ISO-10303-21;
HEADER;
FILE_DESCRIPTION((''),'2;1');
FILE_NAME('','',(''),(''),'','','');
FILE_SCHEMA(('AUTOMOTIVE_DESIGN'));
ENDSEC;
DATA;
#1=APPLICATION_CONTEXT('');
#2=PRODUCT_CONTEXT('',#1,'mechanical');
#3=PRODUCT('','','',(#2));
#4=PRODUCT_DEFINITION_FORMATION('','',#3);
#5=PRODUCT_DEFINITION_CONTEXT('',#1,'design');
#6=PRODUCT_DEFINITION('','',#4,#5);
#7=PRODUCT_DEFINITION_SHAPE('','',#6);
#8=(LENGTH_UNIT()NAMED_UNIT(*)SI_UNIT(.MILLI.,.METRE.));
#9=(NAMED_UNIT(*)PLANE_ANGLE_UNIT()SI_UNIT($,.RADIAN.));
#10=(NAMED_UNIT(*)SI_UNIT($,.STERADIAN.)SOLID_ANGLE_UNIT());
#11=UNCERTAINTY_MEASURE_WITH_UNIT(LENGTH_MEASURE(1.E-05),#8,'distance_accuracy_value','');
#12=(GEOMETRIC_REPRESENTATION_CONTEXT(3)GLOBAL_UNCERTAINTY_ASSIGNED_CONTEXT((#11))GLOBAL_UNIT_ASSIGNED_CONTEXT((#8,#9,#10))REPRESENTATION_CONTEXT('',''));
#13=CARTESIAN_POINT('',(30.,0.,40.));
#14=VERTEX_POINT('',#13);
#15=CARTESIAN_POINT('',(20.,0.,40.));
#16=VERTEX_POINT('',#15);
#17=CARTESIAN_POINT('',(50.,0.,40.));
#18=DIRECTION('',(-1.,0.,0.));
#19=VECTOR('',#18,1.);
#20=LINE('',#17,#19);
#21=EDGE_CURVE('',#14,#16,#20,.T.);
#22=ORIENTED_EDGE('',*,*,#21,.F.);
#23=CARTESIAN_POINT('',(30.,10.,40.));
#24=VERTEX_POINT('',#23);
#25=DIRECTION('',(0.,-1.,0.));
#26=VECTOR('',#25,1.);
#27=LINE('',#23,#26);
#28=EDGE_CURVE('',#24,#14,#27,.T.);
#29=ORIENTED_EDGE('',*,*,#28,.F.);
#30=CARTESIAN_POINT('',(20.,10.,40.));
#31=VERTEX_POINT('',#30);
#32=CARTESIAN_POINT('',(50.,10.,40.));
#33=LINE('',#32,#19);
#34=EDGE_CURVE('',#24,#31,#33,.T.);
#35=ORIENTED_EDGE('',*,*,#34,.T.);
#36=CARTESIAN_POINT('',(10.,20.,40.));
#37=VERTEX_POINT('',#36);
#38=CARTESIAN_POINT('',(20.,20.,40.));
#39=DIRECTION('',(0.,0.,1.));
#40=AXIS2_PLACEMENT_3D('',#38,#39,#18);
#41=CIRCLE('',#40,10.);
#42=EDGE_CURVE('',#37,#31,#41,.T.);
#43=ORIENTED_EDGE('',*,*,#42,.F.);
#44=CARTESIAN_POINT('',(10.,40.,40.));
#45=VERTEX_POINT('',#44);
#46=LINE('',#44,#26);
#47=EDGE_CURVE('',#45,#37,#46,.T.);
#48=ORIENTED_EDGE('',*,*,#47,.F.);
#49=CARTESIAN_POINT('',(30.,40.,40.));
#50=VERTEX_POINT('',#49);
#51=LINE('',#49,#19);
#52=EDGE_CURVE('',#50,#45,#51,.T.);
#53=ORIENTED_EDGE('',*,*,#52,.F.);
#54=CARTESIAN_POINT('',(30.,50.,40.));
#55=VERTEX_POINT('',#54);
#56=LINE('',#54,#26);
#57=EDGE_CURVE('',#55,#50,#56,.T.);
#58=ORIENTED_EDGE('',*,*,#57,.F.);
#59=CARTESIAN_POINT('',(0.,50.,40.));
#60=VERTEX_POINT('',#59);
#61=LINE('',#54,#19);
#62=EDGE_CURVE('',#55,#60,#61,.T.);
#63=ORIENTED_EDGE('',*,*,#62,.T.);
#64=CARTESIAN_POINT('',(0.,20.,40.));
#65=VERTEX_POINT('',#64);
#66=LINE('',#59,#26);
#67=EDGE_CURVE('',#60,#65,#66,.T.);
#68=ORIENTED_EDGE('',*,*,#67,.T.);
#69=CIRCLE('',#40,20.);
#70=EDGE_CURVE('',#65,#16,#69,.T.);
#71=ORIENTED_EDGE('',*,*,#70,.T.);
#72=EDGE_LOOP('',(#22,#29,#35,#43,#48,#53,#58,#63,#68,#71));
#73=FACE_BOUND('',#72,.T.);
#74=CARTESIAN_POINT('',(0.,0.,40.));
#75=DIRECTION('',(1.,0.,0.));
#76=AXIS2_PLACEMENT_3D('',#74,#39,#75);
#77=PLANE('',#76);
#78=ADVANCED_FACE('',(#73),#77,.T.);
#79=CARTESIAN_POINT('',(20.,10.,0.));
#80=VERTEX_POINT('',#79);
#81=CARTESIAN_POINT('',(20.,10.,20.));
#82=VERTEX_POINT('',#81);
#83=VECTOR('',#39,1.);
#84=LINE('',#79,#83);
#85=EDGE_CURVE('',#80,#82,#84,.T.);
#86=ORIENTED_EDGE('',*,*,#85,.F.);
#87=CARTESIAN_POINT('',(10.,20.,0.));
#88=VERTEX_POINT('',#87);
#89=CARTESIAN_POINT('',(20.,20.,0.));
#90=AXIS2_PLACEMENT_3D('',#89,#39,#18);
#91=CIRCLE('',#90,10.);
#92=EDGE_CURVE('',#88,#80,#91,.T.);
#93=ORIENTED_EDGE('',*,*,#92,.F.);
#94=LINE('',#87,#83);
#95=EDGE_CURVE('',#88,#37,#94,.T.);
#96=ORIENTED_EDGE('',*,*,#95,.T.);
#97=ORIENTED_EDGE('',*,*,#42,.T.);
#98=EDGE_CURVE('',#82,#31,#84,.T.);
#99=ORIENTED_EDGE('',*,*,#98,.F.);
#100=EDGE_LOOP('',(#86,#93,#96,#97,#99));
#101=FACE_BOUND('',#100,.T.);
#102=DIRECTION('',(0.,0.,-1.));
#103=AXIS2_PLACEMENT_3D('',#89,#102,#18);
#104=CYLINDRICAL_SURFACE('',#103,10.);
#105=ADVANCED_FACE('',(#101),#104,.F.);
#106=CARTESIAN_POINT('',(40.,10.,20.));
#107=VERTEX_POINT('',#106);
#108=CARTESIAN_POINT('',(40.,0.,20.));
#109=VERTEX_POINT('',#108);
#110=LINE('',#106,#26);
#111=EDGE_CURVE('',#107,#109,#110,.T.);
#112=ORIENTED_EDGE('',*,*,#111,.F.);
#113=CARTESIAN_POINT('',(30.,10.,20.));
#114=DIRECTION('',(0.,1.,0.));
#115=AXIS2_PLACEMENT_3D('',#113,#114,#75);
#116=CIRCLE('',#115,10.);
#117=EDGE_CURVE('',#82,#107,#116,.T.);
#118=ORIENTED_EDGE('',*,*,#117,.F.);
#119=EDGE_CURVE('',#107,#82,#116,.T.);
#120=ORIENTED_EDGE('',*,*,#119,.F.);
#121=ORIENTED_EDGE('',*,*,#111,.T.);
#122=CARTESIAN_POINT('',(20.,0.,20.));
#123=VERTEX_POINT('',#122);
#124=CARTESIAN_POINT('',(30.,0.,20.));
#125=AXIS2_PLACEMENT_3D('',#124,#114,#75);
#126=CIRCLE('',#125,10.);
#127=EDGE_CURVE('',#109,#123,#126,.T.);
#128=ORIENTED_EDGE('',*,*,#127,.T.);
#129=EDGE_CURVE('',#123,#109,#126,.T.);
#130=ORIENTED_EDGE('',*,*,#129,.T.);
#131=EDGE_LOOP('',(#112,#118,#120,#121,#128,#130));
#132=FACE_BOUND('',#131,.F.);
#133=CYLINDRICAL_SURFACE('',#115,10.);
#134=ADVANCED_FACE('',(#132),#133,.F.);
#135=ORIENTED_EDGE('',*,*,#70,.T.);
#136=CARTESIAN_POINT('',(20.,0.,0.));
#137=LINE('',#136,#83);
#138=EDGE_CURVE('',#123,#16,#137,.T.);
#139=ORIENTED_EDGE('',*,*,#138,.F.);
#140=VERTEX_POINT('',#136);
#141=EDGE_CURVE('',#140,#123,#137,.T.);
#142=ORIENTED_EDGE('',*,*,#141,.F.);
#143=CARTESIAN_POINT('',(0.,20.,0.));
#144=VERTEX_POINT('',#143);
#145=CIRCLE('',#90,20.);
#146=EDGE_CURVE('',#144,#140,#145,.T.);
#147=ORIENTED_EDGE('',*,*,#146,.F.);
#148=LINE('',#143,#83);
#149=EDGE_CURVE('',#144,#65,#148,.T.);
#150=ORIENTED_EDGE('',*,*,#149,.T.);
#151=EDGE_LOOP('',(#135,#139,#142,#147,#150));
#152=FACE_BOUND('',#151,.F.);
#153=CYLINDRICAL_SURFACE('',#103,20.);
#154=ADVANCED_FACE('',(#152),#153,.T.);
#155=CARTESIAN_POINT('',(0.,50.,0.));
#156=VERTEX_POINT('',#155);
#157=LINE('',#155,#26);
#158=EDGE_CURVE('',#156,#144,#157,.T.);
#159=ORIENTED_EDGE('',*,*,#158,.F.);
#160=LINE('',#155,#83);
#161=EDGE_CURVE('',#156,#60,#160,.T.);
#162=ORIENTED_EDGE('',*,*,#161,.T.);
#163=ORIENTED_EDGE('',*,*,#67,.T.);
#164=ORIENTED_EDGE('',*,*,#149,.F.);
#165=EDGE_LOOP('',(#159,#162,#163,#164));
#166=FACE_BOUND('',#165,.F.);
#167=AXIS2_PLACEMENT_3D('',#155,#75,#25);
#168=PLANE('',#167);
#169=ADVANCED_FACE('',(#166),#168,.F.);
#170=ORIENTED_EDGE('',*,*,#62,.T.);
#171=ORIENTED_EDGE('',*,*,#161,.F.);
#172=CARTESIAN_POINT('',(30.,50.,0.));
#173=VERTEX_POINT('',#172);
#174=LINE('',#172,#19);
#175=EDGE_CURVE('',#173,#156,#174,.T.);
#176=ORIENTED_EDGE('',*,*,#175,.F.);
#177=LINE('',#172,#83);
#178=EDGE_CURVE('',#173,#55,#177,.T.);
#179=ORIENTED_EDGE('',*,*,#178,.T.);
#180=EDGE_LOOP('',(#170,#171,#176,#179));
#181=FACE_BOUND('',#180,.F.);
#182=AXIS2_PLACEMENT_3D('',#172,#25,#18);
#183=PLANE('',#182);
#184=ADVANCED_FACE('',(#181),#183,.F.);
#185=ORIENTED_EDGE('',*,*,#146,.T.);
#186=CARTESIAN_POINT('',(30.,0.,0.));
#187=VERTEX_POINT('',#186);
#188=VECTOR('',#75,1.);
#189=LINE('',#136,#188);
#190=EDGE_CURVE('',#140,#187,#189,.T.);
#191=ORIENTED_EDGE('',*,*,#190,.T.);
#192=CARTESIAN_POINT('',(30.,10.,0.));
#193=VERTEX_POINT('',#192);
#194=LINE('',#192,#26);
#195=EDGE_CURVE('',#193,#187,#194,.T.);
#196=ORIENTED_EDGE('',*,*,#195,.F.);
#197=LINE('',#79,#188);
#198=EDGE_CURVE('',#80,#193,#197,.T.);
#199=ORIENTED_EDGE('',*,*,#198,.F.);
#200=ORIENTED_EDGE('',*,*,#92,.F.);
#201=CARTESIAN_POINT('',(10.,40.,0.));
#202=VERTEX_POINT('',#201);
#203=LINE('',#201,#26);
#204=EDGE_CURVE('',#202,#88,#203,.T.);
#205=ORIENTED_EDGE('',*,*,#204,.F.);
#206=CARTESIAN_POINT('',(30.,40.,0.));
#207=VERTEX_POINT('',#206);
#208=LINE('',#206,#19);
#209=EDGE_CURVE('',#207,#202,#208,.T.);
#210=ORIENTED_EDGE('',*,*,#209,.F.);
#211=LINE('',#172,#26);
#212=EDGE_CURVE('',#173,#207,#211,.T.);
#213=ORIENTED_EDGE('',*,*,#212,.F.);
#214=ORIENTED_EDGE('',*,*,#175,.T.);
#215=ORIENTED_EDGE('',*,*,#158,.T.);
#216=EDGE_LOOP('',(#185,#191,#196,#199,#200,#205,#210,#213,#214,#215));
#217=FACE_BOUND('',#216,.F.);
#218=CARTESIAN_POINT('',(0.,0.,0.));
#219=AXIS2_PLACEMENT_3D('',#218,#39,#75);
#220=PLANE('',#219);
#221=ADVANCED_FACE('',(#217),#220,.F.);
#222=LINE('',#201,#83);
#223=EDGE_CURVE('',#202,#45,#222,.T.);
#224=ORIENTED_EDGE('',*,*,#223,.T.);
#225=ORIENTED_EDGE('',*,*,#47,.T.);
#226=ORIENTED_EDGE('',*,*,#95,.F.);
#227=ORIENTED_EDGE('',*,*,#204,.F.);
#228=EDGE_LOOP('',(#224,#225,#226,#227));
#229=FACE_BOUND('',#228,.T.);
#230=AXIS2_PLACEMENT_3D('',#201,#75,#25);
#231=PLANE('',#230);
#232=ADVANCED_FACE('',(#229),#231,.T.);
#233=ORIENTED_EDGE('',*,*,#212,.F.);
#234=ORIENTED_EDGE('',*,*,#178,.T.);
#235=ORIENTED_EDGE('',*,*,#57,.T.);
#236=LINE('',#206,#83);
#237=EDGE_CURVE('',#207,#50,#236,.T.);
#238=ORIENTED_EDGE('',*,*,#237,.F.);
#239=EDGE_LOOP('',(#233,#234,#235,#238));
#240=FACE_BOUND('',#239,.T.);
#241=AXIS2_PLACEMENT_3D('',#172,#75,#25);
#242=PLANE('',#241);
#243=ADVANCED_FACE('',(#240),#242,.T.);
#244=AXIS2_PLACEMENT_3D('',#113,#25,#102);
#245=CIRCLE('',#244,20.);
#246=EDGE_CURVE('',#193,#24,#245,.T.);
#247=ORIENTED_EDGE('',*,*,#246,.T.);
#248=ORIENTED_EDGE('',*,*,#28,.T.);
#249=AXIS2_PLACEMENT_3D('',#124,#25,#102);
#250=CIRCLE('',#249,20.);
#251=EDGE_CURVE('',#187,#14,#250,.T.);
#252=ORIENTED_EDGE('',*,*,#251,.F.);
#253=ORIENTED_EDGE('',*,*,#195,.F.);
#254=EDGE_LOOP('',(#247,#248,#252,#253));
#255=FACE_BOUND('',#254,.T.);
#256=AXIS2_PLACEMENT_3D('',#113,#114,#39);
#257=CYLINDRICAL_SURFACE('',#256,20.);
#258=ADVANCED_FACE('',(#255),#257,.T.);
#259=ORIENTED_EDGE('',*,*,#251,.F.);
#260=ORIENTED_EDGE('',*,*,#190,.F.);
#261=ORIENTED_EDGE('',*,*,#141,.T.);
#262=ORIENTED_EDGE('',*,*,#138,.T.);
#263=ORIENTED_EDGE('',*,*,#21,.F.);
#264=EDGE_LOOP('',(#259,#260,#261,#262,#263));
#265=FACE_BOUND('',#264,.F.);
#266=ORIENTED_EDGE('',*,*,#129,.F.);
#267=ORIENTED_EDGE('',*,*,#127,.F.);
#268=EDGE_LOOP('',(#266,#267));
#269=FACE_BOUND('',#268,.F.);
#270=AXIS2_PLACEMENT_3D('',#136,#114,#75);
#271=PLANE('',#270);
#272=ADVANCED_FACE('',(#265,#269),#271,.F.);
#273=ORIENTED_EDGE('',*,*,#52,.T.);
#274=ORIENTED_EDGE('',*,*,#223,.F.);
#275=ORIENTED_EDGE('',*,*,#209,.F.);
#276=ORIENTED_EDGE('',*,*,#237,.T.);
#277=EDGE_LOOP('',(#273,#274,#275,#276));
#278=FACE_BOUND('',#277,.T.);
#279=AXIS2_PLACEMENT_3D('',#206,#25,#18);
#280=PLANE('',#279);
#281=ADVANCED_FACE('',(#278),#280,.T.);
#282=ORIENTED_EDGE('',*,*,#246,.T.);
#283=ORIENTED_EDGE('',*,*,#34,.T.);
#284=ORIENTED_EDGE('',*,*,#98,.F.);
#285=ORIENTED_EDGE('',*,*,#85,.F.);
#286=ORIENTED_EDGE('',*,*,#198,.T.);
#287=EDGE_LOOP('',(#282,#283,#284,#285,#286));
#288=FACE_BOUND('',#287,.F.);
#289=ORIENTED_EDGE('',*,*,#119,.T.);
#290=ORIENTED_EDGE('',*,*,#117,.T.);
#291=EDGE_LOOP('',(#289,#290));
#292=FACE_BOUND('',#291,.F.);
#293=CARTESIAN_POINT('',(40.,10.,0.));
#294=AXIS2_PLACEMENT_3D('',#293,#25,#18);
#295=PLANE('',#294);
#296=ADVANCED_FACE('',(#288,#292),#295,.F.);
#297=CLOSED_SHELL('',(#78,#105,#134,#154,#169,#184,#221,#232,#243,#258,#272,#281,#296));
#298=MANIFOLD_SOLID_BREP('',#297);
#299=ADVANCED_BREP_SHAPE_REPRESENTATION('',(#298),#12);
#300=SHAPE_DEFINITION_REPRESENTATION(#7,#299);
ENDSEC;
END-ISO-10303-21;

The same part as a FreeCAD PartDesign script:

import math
import FreeCAD as App
import Part
import Sketcher

doc = App.newDocument("Part")
params = doc.addObject("Spreadsheet::Sheet", "Params")
for row, (alias, value) in enumerate([
    ("sketch1_radius", "20 mm"),
    ("sketch1_radius2", "10 mm"),
    ("sketch1_width", "30 mm"),
    ("pad1_length", "40 mm"),
    ("sketch2_diameter", "20 mm"),
    ("pocket1_length", "40 mm"),
    ("sketch3_radius", "20 mm"),
    ("pocket2_length", "40 mm"),
], start=1):
    params.set(f"A{row}", alias)
    params.set(f"B{row}", "=" + value)
    params.setAlias(f"B{row}", alias)

body = doc.addObject("PartDesign::Body", "Body")

sketch1 = body.newObject("Sketcher::SketchObject", "Sketch")
sketch1.AttachmentSupport = (doc.getObject("XY_Plane"), [""])
sketch1.MapMode = "FlatFace"
sketch1.addGeometry([
    Part.ArcOfCircle(Part.Circle(App.Vector(20, 20, 0), App.Vector(0, 0, 1), 20), math.radians(180), math.radians(270)),
    Part.LineSegment(App.Vector(20, 0, 0), App.Vector(50, 0, 0)),
    Part.LineSegment(App.Vector(50, 0, 0), App.Vector(50, 10, 0)),
    Part.LineSegment(App.Vector(50, 10, 0), App.Vector(20, 10, 0)),
    Part.ArcOfCircle(Part.Circle(App.Vector(20, 20, 0), App.Vector(0, 0, 1), 10), math.radians(180), math.radians(270)),
    Part.LineSegment(App.Vector(10, 20, 0), App.Vector(10, 40, 0)),
    Part.LineSegment(App.Vector(10, 40, 0), App.Vector(30, 40, 0)),
    Part.LineSegment(App.Vector(30, 40, 0), App.Vector(30, 50, 0)),
    Part.LineSegment(App.Vector(30, 50, 0), App.Vector(0, 50, 0)),
    Part.LineSegment(App.Vector(0, 50, 0), App.Vector(0, 20, 0)),
], False)
sketch1.addConstraint([
    Sketcher.Constraint("Tangent", 0, 2, 1, 1),
    Sketcher.Constraint("Coincident", 1, 2, 2, 1),
    Sketcher.Constraint("Coincident", 2, 2, 3, 1),
    Sketcher.Constraint("Tangent", 3, 2, 4, 2),
    Sketcher.Constraint("Tangent", 4, 1, 5, 1),
    Sketcher.Constraint("Coincident", 5, 2, 6, 1),
    Sketcher.Constraint("Coincident", 6, 2, 7, 1),
    Sketcher.Constraint("Coincident", 7, 2, 8, 1),
    Sketcher.Constraint("Coincident", 8, 2, 9, 1),
    Sketcher.Constraint("Tangent", 9, 2, 0, 1),
    Sketcher.Constraint("Horizontal", 1),
    Sketcher.Constraint("Vertical", 2),
    Sketcher.Constraint("Horizontal", 3),
    Sketcher.Constraint("Vertical", 5),
    Sketcher.Constraint("Horizontal", 6),
    Sketcher.Constraint("Vertical", 7),
    Sketcher.Constraint("Horizontal", 8),
    Sketcher.Constraint("Vertical", 9),
    Sketcher.Constraint("Coincident", 4, 3, 0, 3),
    Sketcher.Constraint("PointOnObject", 0, 2, -1),
    Sketcher.Constraint("PointOnObject", 8, 2, -2),
    Sketcher.Constraint("Equal", 3, 8),
    Sketcher.Constraint("Equal", 6, 5),
    Sketcher.Constraint("Equal", 2, 7),
    Sketcher.Constraint("Radius", 0, 20.0),
    Sketcher.Constraint("Radius", 4, 10.0),
    Sketcher.Constraint("DistanceX", 1, 1, 1, 2, 30.0),
])
sketch1.setExpression("Constraints[24]", "Params.sketch1_radius")
sketch1.setExpression("Constraints[25]", "Params.sketch1_radius2")
sketch1.setExpression("Constraints[26]", "Params.sketch1_width")
pad1 = body.newObject("PartDesign::Pad", "Pad")
pad1.Profile = sketch1
pad1.setExpression("Length", "Params.pad1_length")

sketch2 = body.newObject("Sketcher::SketchObject", "Sketch001")
sketch2.AttachmentSupport = (doc.getObject("XZ_Plane"), [""])
sketch2.MapMode = "FlatFace"
sketch2.AttachmentOffset = App.Placement(App.Vector(0, 0, -10), App.Rotation())
sketch2.addGeometry(Part.Circle(App.Vector(30, 20, 0), App.Vector(0, 0, 1), 10), False)
sketch2.addConstraint([
    Sketcher.Constraint("Diameter", 0, 20.0),
    Sketcher.Constraint("DistanceY", -1, 1, 0, 3, 20.0),
    Sketcher.Constraint("DistanceX", -1, 1, 0, 3, 30.0),
])
sketch2.setExpression("Constraints[0]", "Params.sketch2_diameter")
pocket1 = body.newObject("PartDesign::Pocket", "Pocket")
pocket1.Profile = sketch2
pocket1.setExpression("Length", "Params.pocket1_length")
pocket1.Reversed = True

sketch3 = body.newObject("Sketcher::SketchObject", "Sketch002")
sketch3.AttachmentSupport = (doc.getObject("XZ_Plane"), [""])
sketch3.MapMode = "FlatFace"
sketch3.AttachmentOffset = App.Placement(App.Vector(0, 0, -10), App.Rotation())
sketch3.addGeometry([
    Part.LineSegment(App.Vector(50, 20, 0), App.Vector(50, 0, 0)),
    Part.LineSegment(App.Vector(50, 0, 0), App.Vector(30, 0, 0)),
    Part.ArcOfCircle(Part.Circle(App.Vector(30, 20, 0), App.Vector(0, 0, 1), 20), math.radians(-90), math.radians(0)),
    Part.LineSegment(App.Vector(50, 40, 0), App.Vector(50, 20, 0)),
    Part.ArcOfCircle(Part.Circle(App.Vector(30, 20, 0), App.Vector(0, 0, 1), 20), math.radians(0), math.radians(90)),
    Part.LineSegment(App.Vector(30, 40, 0), App.Vector(50, 40, 0)),
], False)
sketch3.addConstraint([
    Sketcher.Constraint("Coincident", 0, 2, 1, 1),
    Sketcher.Constraint("Tangent", 1, 2, 2, 1),
    Sketcher.Constraint("Tangent", 2, 2, 0, 1),
    Sketcher.Constraint("Tangent", 3, 2, 4, 1),
    Sketcher.Constraint("Tangent", 4, 2, 5, 1),
    Sketcher.Constraint("Coincident", 5, 2, 3, 1),
    Sketcher.Constraint("Vertical", 0),
    Sketcher.Constraint("Horizontal", 1),
    Sketcher.Constraint("Vertical", 3),
    Sketcher.Constraint("Horizontal", 5),
    Sketcher.Constraint("Coincident", 4, 3, 2, 3),
    Sketcher.Constraint("Equal", 2, 4),
    Sketcher.Constraint("PointOnObject", 0, 2, -1),
    Sketcher.Constraint("Radius", 2, 20.0),
    Sketcher.Constraint("DistanceX", -1, 1, 2, 3, 30.0),
])
sketch3.setExpression("Constraints[13]", "Params.sketch3_radius")
pocket2 = body.newObject("PartDesign::Pocket", "Pocket001")
pocket2.Profile = sketch3
pocket2.setExpression("Length", "Params.pocket2_length")
pocket2.Reversed = True

doc.recompute()
